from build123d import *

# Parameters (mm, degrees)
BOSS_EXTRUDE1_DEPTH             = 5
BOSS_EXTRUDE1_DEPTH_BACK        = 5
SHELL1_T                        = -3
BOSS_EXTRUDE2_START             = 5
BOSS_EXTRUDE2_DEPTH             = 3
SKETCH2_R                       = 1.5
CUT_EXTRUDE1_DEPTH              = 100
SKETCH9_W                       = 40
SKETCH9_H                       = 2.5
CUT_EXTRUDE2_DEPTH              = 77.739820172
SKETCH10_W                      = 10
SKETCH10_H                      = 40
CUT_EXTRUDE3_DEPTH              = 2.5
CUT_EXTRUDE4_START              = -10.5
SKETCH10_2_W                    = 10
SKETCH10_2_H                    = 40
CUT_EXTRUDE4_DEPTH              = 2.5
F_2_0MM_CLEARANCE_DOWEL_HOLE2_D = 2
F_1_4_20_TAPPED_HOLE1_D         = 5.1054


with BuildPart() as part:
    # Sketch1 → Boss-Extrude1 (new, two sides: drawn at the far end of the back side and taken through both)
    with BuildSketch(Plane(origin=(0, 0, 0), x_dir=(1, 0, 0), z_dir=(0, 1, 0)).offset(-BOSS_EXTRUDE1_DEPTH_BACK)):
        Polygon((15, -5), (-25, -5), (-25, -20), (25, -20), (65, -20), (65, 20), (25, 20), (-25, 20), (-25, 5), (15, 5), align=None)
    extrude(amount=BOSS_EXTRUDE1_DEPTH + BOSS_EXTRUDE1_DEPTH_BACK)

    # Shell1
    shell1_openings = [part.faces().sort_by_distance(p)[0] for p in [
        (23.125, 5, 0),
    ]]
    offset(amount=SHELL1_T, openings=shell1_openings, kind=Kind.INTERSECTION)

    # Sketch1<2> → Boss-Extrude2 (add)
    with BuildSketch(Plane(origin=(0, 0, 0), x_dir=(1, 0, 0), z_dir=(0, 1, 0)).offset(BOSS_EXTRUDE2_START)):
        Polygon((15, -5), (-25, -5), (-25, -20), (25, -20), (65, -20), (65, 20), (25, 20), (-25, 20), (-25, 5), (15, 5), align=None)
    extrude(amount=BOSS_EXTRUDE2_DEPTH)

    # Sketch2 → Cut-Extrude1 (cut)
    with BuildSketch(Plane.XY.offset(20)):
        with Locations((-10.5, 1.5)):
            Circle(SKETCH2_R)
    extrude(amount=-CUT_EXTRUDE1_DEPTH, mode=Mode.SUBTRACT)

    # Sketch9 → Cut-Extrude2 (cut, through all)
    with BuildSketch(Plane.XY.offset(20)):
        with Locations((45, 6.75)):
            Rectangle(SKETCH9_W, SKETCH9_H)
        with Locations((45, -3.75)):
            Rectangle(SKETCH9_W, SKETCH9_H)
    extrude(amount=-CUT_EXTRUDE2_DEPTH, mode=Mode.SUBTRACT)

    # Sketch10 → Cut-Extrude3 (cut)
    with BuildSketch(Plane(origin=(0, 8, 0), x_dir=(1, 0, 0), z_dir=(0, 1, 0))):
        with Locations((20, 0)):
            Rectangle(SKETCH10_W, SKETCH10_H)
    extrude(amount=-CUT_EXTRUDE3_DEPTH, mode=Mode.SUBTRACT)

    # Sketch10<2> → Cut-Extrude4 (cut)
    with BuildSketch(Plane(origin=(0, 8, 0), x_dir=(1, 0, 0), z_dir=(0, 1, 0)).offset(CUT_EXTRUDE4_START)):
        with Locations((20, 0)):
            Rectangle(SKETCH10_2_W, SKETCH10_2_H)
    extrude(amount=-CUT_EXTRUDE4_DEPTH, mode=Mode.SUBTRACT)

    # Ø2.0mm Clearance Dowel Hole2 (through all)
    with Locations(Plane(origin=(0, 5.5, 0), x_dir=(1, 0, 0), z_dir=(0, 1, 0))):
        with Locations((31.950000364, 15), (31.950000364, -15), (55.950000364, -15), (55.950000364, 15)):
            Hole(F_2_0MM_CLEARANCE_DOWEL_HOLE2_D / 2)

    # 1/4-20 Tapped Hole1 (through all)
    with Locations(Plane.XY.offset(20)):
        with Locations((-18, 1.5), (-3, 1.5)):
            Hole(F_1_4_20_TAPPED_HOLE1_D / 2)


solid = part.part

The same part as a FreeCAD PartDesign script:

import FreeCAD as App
import Part
import Sketcher
from FreeCAD import Vector
Q = App.Units.Quantity


def faces_at(feature, points):
    """Names of the faces that lie closest to the given points."""
    faces = feature.Shape.Faces
    near = lambda p: min(range(len(faces)), key=lambda i: faces[i].distToShape(Part.Vertex(*p))[0])
    return sorted({f"Face{near(p) + 1}" for p in points})


def add_polygon(sketch, points):
    """Adds a closed chain of lines whose ends are joined by coincident constraints."""
    first, n = sketch.GeometryCount, len(points)
    for a, b in zip(points, points[1:] + points[:1]):
        sketch.addGeometry(Part.LineSegment(App.Vector(*a, 0), App.Vector(*b, 0)), False)
    for i in range(n):
        sketch.addConstraint(Sketcher.Constraint("Coincident", first + i, 2, first + (i + 1) % n, 1))

doc = App.newDocument("Part")
body = doc.addObject("PartDesign::Body", "Body")

sketch1 = body.newObject("Sketcher::SketchObject", "Sketch")
sketch1.AttachmentSupport = (doc.getObject("XZ_Plane"), [""])
sketch1.MapMode = "FlatFace"
add_polygon(sketch1, [(15, 5), (-25, 5), (-25, 20), (65, 20), (65, -20), (-25, -20), (-25, -5), (15, -5)])
sketch1.addConstraint(Sketcher.Constraint("Horizontal", 0))
sketch1.addConstraint(Sketcher.Constraint("Vertical", 1))
sketch1.addConstraint(Sketcher.Constraint("Horizontal", 2))
sketch1.addConstraint(Sketcher.Constraint("Vertical", 3))
sketch1.addConstraint(Sketcher.Constraint("Horizontal", 4))
sketch1.addConstraint(Sketcher.Constraint("Vertical", 5))
sketch1.addConstraint(Sketcher.Constraint("Horizontal", 6))
sketch1.addConstraint(Sketcher.Constraint("Vertical", 7))
sketch1.addConstraint(Sketcher.Constraint("Symmetric", 1, 2, 4, 2, -1))
sketch1.addConstraint(Sketcher.Constraint("Equal", 6, 3))
sketch1.addConstraint(Sketcher.Constraint("Equal", 1, 5))
sketch1.addConstraint(Sketcher.Constraint("DistanceX", 0, 2, 0, 1, Q("40 mm")))
sketch1.addConstraint(Sketcher.Constraint("DistanceX", 2, 1, 2, 2, Q("90 mm")))
sketch1.addConstraint(Sketcher.Constraint("DistanceY", 1, 1, 1, 2, Q("15 mm")))
sketch1.addConstraint(Sketcher.Constraint("DistanceX", 0, 2, -1, 1, Q("25 mm")))
pad1 = body.newObject("PartDesign::Pad", "Pad")
pad1.Profile = sketch1
pad1.Type = "TwoLengths"
pad1.Length = 5
pad1.Length2 = 5
pad1.Reversed = True
doc.recompute()

thickness = body.newObject("PartDesign::Thickness", "Thickness")
thickness.Base = (pad1, faces_at(pad1, [(20, 5, 0)]))
thickness.Value = 3
thickness.Reversed = True
thickness.Join = "Intersection"

sketch2 = body.newObject("Sketcher::SketchObject", "Sketch001")
sketch2.AttachmentSupport = (doc.getObject("XZ_Plane"), [""])
sketch2.MapMode = "FlatFace"
sketch2.AttachmentOffset = App.Placement(Vector(0, 0, -5), App.Rotation())
add_polygon(sketch2, [(15, 5), (-25, 5), (-25, 20), (65, 20), (65, -20), (-25, -20), (-25, -5), (15, -5)])
sketch2.addConstraint(Sketcher.Constraint("Horizontal", 0))
sketch2.addConstraint(Sketcher.Constraint("Vertical", 1))
sketch2.addConstraint(Sketcher.Constraint("Horizontal", 2))
sketch2.addConstraint(Sketcher.Constraint("Vertical", 3))
sketch2.addConstraint(Sketcher.Constraint("Horizontal", 4))
sketch2.addConstraint(Sketcher.Constraint("Vertical", 5))
sketch2.addConstraint(Sketcher.Constraint("Horizontal", 6))
sketch2.addConstraint(Sketcher.Constraint("Vertical", 7))
sketch2.addConstraint(Sketcher.Constraint("Symmetric", 1, 2, 4, 2, -1))
sketch2.addConstraint(Sketcher.Constraint("Equal", 6, 3))
sketch2.addConstraint(Sketcher.Constraint("Equal", 1, 5))
sketch2.addConstraint(Sketcher.Constraint("DistanceX", 0, 2, 0, 1, Q("40 mm")))
sketch2.addConstraint(Sketcher.Constraint("DistanceX", 2, 1, 2, 2, Q("90 mm")))
sketch2.addConstraint(Sketcher.Constraint("DistanceY", 1, 1, 1, 2, Q("15 mm")))
sketch2.addConstraint(Sketcher.Constraint("DistanceX", 0, 2, -1, 1, Q("25 mm")))
pad2 = body.newObject("PartDesign::Pad", "Pad001")
pad2.Profile = sketch2
pad2.Length = 3
pad2.Reversed = True

sketch3 = body.newObject("Sketcher::SketchObject", "Sketch002")
sketch3.AttachmentSupport = (doc.getObject("XY_Plane"), [""])
sketch3.MapMode = "FlatFace"
sketch3.AttachmentOffset = App.Placement(Vector(0, 0, 20), App.Rotation())
sketch3.addGeometry(Part.Circle(Vector(-10.5, 1.5, 0), Vector(0, 0, 1), 1.5), False)
sketch3.addConstraint(Sketcher.Constraint("Diameter", 0, Q("3 mm")))
sketch3.addConstraint(Sketcher.Constraint("DistanceX", 0, 3, -1, 1, Q("10.5 mm")))
sketch3.addConstraint(Sketcher.Constraint("DistanceY", -1, 1, 0, 3, Q("1.5 mm")))
pocket1 = body.newObject("PartDesign::Pocket", "Pocket")
pocket1.Profile = sketch3
pocket1.Length = 100

sketch4 = body.newObject("Sketcher::SketchObject", "Sketch003")
sketch4.AttachmentSupport = (doc.getObject("XY_Plane"), [""])
sketch4.MapMode = "FlatFace"
sketch4.AttachmentOffset = App.Placement(Vector(0, 0, 20), App.Rotation())
add_polygon(sketch4, [(25, 8), (25, 5.5), (65, 5.5), (65, 8)])
add_polygon(sketch4, [(25, -2.5), (25, -5), (65, -5), (65, -2.5)])
sketch4.addConstraint(Sketcher.Constraint("Vertical", 0))
sketch4.addConstraint(Sketcher.Constraint("Horizontal", 1))
sketch4.addConstraint(Sketcher.Constraint("Vertical", 2))
sketch4.addConstraint(Sketcher.Constraint("Horizontal", 3))
sketch4.addConstraint(Sketcher.Constraint("Vertical", 4))
sketch4.addConstraint(Sketcher.Constraint("Horizontal", 5))
sketch4.addConstraint(Sketcher.Constraint("Vertical", 6))
sketch4.addConstraint(Sketcher.Constraint("Horizontal", 7))
sketch4.addConstraint(Sketcher.Constraint("Vertical", 3, 2, 4, 2))
sketch4.addConstraint(Sketcher.Constraint("Vertical", 2, 2, 5, 2))
sketch4.addConstraint(Sketcher.Constraint("Equal", 2, 4))
sketch4.addConstraint(Sketcher.Constraint("DistanceX", 1, 1, 1, 2, Q("40 mm")))
sketch4.addConstraint(Sketcher.Constraint("DistanceY", 0, 2, 0, 1, Q("2.5 mm")))
sketch4.addConstraint(Sketcher.Constraint("DistanceX", -1, 1, 0, 2, Q("25 mm")))
sketch4.addConstraint(Sketcher.Constraint("DistanceY", -1, 1, 2, 2, Q("8 mm")))
sketch4.addConstraint(Sketcher.Constraint("DistanceY", 4, 2, -1, 1, Q("5 mm")))
pocket2 = body.newObject("PartDesign::Pocket", "Pocket001")
pocket2.Profile = sketch4
pocket2.Type = "ThroughAll"

sketch5 = body.newObject("Sketcher::SketchObject", "Sketch004")
sketch5.AttachmentSupport = (doc.getObject("XZ_Plane"), [""])
sketch5.MapMode = "FlatFace"
sketch5.AttachmentOffset = App.Placement(Vector(0, 0, -8), App.Rotation())
add_polygon(sketch5, [(15, -20), (15, 20), (25, 20), (25, -20)])
sketch5.addConstraint(Sketcher.Constraint("Vertical", 0))
sketch5.addConstraint(Sketcher.Constraint("Horizontal", 1))
sketch5.addConstraint(Sketcher.Constraint("Vertical", 2))
sketch5.addConstraint(Sketcher.Constraint("Horizontal", 3))
sketch5.addConstraint(Sketcher.Constraint("DistanceX", 1, 1, 1, 2, Q("10 mm")))
sketch5.addConstraint(Sketcher.Constraint("DistanceY", 0, 1, 0, 2, Q("40 mm")))
sketch5.addConstraint(Sketcher.Constraint("DistanceX", -1, 1, 0, 2, Q("15 mm")))
sketch5.addConstraint(Sketcher.Constraint("DistanceY", -1, 1, 0, 2, Q("20 mm")))
pocket3 = body.newObject("PartDesign::Pocket", "Pocket002")
pocket3.Profile = sketch5
pocket3.Length = 2.5
pocket3.Reversed = True

sketch6 = body.newObject("Sketcher::SketchObject", "Sketch005")
sketch6.AttachmentSupport = (doc.getObject("XZ_Plane"), [""])
sketch6.MapMode = "FlatFace"
sketch6.AttachmentOffset = App.Placement(Vector(0, 0, 2.5), App.Rotation())
add_polygon(sketch6, [(15, -20), (15, 20), (25, 20), (25, -20)])
sketch6.addConstraint(Sketcher.Constraint("Vertical", 0))
sketch6.addConstraint(Sketcher.Constraint("Horizontal", 1))
sketch6.addConstraint(Sketcher.Constraint("Vertical", 2))
sketch6.addConstraint(Sketcher.Constraint("Horizontal", 3))
sketch6.addConstraint(Sketcher.Constraint("DistanceX", 1, 1, 1, 2, Q("10 mm")))
sketch6.addConstraint(Sketcher.Constraint("DistanceY", 0, 1, 0, 2, Q("40 mm")))
sketch6.addConstraint(Sketcher.Constraint("DistanceX", -1, 1, 0, 2, Q("15 mm")))
sketch6.addConstraint(Sketcher.Constraint("DistanceY", -1, 1, 0, 2, Q("20 mm")))
pocket4 = body.newObject("PartDesign::Pocket", "Pocket003")
pocket4.Profile = sketch6
pocket4.Length = 2.5
pocket4.Reversed = True

sketch7 = body.newObject("Sketcher::SketchObject", "Sketch006")
sketch7.AttachmentSupport = (doc.getObject("XZ_Plane"), [""])
sketch7.MapMode = "FlatFace"
sketch7.AttachmentOffset = App.Placement(Vector(0, 0, -5.5), App.Rotation())
sketch7.addGeometry(Part.Circle(Vector(32, -15, 0), Vector(0, 0, 1), 1), False)
sketch7.addGeometry(Part.Circle(Vector(32, 15, 0), Vector(0, 0, 1), 1), False)
sketch7.addGeometry(Part.Circle(Vector(56, 15, 0), Vector(0, 0, 1), 1), False)
sketch7.addGeometry(Part.Circle(Vector(56, -15, 0), Vector(0, 0, 1), 1), False)
sketch7.addConstraint(Sketcher.Constraint("Equal", 0, 1))
sketch7.addConstraint(Sketcher.Constraint("Equal", 1, 2))
sketch7.addConstraint(Sketcher.Constraint("Equal", 2, 3))
sketch7.addConstraint(Sketcher.Constraint("Symmetric", 0, 3, 1, 3, -1))
sketch7.addConstraint(Sketcher.Constraint("Symmetric", 2, 3, 3, 3, -1))
sketch7.addConstraint(Sketcher.Constraint("Horizontal", 1, 3, 2, 3))
sketch7.addConstraint(Sketcher.Constraint("Diameter", 0, Q("2 mm")))
sketch7.addConstraint(Sketcher.Constraint("DistanceY", 0, 3, -1, 1, Q("15 mm")))
sketch7.addConstraint(Sketcher.Constraint("DistanceX", 1, 3, 2, 3, Q("24 mm")))
sketch7.addConstraint(Sketcher.Constraint("DistanceX", -1, 1, 0, 3, Q("31.95 mm")))
doc.recompute()
hole = body.newObject("PartDesign::Hole", "Hole")
hole.Profile = sketch7
hole.ThreadType = "None"
hole.Diameter = 2
hole.DepthType = "ThroughAll"
hole.Reversed = True

sketch8 = body.newObject("Sketcher::SketchObject", "Sketch007")
sketch8.AttachmentSupport = (doc.getObject("XY_Plane"), [""])
sketch8.MapMode = "FlatFace"
sketch8.AttachmentOffset = App.Placement(Vector(0, 0, 20), App.Rotation())
sketch8.addGeometry(Part.Circle(Vector(-18, 1.5, 0), Vector(0, 0, 1), 2.6), False)
sketch8.addGeometry(Part.Circle(Vector(-3, 1.5, 0), Vector(0, 0, 1), 2.6), False)
sketch8.addConstraint(Sketcher.Constraint("Equal", 0, 1))
sketch8.addConstraint(Sketcher.Constraint("Horizontal", 0, 3, 1, 3))
sketch8.addConstraint(Sketcher.Constraint("DistanceX", 0, 3, -1, 1, Q("18 mm")))
sketch8.addConstraint(Sketcher.Constraint("DistanceX", 1, 3, -1, 1, Q("3 mm")))
sketch8.addConstraint(Sketcher.Constraint("Diameter", 0, Q("5.1054 mm")))
sketch8.addConstraint(Sketcher.Constraint("DistanceY", -1, 1, 0, 3, Q("1.5 mm")))
doc.recompute()
hole2 = body.newObject("PartDesign::Hole", "Hole001")
hole2.Profile = sketch8
hole2.ThreadType = "None"
hole2.Diameter = 5.1054
hole2.DepthType = "ThroughAll"

doc.recompute()
